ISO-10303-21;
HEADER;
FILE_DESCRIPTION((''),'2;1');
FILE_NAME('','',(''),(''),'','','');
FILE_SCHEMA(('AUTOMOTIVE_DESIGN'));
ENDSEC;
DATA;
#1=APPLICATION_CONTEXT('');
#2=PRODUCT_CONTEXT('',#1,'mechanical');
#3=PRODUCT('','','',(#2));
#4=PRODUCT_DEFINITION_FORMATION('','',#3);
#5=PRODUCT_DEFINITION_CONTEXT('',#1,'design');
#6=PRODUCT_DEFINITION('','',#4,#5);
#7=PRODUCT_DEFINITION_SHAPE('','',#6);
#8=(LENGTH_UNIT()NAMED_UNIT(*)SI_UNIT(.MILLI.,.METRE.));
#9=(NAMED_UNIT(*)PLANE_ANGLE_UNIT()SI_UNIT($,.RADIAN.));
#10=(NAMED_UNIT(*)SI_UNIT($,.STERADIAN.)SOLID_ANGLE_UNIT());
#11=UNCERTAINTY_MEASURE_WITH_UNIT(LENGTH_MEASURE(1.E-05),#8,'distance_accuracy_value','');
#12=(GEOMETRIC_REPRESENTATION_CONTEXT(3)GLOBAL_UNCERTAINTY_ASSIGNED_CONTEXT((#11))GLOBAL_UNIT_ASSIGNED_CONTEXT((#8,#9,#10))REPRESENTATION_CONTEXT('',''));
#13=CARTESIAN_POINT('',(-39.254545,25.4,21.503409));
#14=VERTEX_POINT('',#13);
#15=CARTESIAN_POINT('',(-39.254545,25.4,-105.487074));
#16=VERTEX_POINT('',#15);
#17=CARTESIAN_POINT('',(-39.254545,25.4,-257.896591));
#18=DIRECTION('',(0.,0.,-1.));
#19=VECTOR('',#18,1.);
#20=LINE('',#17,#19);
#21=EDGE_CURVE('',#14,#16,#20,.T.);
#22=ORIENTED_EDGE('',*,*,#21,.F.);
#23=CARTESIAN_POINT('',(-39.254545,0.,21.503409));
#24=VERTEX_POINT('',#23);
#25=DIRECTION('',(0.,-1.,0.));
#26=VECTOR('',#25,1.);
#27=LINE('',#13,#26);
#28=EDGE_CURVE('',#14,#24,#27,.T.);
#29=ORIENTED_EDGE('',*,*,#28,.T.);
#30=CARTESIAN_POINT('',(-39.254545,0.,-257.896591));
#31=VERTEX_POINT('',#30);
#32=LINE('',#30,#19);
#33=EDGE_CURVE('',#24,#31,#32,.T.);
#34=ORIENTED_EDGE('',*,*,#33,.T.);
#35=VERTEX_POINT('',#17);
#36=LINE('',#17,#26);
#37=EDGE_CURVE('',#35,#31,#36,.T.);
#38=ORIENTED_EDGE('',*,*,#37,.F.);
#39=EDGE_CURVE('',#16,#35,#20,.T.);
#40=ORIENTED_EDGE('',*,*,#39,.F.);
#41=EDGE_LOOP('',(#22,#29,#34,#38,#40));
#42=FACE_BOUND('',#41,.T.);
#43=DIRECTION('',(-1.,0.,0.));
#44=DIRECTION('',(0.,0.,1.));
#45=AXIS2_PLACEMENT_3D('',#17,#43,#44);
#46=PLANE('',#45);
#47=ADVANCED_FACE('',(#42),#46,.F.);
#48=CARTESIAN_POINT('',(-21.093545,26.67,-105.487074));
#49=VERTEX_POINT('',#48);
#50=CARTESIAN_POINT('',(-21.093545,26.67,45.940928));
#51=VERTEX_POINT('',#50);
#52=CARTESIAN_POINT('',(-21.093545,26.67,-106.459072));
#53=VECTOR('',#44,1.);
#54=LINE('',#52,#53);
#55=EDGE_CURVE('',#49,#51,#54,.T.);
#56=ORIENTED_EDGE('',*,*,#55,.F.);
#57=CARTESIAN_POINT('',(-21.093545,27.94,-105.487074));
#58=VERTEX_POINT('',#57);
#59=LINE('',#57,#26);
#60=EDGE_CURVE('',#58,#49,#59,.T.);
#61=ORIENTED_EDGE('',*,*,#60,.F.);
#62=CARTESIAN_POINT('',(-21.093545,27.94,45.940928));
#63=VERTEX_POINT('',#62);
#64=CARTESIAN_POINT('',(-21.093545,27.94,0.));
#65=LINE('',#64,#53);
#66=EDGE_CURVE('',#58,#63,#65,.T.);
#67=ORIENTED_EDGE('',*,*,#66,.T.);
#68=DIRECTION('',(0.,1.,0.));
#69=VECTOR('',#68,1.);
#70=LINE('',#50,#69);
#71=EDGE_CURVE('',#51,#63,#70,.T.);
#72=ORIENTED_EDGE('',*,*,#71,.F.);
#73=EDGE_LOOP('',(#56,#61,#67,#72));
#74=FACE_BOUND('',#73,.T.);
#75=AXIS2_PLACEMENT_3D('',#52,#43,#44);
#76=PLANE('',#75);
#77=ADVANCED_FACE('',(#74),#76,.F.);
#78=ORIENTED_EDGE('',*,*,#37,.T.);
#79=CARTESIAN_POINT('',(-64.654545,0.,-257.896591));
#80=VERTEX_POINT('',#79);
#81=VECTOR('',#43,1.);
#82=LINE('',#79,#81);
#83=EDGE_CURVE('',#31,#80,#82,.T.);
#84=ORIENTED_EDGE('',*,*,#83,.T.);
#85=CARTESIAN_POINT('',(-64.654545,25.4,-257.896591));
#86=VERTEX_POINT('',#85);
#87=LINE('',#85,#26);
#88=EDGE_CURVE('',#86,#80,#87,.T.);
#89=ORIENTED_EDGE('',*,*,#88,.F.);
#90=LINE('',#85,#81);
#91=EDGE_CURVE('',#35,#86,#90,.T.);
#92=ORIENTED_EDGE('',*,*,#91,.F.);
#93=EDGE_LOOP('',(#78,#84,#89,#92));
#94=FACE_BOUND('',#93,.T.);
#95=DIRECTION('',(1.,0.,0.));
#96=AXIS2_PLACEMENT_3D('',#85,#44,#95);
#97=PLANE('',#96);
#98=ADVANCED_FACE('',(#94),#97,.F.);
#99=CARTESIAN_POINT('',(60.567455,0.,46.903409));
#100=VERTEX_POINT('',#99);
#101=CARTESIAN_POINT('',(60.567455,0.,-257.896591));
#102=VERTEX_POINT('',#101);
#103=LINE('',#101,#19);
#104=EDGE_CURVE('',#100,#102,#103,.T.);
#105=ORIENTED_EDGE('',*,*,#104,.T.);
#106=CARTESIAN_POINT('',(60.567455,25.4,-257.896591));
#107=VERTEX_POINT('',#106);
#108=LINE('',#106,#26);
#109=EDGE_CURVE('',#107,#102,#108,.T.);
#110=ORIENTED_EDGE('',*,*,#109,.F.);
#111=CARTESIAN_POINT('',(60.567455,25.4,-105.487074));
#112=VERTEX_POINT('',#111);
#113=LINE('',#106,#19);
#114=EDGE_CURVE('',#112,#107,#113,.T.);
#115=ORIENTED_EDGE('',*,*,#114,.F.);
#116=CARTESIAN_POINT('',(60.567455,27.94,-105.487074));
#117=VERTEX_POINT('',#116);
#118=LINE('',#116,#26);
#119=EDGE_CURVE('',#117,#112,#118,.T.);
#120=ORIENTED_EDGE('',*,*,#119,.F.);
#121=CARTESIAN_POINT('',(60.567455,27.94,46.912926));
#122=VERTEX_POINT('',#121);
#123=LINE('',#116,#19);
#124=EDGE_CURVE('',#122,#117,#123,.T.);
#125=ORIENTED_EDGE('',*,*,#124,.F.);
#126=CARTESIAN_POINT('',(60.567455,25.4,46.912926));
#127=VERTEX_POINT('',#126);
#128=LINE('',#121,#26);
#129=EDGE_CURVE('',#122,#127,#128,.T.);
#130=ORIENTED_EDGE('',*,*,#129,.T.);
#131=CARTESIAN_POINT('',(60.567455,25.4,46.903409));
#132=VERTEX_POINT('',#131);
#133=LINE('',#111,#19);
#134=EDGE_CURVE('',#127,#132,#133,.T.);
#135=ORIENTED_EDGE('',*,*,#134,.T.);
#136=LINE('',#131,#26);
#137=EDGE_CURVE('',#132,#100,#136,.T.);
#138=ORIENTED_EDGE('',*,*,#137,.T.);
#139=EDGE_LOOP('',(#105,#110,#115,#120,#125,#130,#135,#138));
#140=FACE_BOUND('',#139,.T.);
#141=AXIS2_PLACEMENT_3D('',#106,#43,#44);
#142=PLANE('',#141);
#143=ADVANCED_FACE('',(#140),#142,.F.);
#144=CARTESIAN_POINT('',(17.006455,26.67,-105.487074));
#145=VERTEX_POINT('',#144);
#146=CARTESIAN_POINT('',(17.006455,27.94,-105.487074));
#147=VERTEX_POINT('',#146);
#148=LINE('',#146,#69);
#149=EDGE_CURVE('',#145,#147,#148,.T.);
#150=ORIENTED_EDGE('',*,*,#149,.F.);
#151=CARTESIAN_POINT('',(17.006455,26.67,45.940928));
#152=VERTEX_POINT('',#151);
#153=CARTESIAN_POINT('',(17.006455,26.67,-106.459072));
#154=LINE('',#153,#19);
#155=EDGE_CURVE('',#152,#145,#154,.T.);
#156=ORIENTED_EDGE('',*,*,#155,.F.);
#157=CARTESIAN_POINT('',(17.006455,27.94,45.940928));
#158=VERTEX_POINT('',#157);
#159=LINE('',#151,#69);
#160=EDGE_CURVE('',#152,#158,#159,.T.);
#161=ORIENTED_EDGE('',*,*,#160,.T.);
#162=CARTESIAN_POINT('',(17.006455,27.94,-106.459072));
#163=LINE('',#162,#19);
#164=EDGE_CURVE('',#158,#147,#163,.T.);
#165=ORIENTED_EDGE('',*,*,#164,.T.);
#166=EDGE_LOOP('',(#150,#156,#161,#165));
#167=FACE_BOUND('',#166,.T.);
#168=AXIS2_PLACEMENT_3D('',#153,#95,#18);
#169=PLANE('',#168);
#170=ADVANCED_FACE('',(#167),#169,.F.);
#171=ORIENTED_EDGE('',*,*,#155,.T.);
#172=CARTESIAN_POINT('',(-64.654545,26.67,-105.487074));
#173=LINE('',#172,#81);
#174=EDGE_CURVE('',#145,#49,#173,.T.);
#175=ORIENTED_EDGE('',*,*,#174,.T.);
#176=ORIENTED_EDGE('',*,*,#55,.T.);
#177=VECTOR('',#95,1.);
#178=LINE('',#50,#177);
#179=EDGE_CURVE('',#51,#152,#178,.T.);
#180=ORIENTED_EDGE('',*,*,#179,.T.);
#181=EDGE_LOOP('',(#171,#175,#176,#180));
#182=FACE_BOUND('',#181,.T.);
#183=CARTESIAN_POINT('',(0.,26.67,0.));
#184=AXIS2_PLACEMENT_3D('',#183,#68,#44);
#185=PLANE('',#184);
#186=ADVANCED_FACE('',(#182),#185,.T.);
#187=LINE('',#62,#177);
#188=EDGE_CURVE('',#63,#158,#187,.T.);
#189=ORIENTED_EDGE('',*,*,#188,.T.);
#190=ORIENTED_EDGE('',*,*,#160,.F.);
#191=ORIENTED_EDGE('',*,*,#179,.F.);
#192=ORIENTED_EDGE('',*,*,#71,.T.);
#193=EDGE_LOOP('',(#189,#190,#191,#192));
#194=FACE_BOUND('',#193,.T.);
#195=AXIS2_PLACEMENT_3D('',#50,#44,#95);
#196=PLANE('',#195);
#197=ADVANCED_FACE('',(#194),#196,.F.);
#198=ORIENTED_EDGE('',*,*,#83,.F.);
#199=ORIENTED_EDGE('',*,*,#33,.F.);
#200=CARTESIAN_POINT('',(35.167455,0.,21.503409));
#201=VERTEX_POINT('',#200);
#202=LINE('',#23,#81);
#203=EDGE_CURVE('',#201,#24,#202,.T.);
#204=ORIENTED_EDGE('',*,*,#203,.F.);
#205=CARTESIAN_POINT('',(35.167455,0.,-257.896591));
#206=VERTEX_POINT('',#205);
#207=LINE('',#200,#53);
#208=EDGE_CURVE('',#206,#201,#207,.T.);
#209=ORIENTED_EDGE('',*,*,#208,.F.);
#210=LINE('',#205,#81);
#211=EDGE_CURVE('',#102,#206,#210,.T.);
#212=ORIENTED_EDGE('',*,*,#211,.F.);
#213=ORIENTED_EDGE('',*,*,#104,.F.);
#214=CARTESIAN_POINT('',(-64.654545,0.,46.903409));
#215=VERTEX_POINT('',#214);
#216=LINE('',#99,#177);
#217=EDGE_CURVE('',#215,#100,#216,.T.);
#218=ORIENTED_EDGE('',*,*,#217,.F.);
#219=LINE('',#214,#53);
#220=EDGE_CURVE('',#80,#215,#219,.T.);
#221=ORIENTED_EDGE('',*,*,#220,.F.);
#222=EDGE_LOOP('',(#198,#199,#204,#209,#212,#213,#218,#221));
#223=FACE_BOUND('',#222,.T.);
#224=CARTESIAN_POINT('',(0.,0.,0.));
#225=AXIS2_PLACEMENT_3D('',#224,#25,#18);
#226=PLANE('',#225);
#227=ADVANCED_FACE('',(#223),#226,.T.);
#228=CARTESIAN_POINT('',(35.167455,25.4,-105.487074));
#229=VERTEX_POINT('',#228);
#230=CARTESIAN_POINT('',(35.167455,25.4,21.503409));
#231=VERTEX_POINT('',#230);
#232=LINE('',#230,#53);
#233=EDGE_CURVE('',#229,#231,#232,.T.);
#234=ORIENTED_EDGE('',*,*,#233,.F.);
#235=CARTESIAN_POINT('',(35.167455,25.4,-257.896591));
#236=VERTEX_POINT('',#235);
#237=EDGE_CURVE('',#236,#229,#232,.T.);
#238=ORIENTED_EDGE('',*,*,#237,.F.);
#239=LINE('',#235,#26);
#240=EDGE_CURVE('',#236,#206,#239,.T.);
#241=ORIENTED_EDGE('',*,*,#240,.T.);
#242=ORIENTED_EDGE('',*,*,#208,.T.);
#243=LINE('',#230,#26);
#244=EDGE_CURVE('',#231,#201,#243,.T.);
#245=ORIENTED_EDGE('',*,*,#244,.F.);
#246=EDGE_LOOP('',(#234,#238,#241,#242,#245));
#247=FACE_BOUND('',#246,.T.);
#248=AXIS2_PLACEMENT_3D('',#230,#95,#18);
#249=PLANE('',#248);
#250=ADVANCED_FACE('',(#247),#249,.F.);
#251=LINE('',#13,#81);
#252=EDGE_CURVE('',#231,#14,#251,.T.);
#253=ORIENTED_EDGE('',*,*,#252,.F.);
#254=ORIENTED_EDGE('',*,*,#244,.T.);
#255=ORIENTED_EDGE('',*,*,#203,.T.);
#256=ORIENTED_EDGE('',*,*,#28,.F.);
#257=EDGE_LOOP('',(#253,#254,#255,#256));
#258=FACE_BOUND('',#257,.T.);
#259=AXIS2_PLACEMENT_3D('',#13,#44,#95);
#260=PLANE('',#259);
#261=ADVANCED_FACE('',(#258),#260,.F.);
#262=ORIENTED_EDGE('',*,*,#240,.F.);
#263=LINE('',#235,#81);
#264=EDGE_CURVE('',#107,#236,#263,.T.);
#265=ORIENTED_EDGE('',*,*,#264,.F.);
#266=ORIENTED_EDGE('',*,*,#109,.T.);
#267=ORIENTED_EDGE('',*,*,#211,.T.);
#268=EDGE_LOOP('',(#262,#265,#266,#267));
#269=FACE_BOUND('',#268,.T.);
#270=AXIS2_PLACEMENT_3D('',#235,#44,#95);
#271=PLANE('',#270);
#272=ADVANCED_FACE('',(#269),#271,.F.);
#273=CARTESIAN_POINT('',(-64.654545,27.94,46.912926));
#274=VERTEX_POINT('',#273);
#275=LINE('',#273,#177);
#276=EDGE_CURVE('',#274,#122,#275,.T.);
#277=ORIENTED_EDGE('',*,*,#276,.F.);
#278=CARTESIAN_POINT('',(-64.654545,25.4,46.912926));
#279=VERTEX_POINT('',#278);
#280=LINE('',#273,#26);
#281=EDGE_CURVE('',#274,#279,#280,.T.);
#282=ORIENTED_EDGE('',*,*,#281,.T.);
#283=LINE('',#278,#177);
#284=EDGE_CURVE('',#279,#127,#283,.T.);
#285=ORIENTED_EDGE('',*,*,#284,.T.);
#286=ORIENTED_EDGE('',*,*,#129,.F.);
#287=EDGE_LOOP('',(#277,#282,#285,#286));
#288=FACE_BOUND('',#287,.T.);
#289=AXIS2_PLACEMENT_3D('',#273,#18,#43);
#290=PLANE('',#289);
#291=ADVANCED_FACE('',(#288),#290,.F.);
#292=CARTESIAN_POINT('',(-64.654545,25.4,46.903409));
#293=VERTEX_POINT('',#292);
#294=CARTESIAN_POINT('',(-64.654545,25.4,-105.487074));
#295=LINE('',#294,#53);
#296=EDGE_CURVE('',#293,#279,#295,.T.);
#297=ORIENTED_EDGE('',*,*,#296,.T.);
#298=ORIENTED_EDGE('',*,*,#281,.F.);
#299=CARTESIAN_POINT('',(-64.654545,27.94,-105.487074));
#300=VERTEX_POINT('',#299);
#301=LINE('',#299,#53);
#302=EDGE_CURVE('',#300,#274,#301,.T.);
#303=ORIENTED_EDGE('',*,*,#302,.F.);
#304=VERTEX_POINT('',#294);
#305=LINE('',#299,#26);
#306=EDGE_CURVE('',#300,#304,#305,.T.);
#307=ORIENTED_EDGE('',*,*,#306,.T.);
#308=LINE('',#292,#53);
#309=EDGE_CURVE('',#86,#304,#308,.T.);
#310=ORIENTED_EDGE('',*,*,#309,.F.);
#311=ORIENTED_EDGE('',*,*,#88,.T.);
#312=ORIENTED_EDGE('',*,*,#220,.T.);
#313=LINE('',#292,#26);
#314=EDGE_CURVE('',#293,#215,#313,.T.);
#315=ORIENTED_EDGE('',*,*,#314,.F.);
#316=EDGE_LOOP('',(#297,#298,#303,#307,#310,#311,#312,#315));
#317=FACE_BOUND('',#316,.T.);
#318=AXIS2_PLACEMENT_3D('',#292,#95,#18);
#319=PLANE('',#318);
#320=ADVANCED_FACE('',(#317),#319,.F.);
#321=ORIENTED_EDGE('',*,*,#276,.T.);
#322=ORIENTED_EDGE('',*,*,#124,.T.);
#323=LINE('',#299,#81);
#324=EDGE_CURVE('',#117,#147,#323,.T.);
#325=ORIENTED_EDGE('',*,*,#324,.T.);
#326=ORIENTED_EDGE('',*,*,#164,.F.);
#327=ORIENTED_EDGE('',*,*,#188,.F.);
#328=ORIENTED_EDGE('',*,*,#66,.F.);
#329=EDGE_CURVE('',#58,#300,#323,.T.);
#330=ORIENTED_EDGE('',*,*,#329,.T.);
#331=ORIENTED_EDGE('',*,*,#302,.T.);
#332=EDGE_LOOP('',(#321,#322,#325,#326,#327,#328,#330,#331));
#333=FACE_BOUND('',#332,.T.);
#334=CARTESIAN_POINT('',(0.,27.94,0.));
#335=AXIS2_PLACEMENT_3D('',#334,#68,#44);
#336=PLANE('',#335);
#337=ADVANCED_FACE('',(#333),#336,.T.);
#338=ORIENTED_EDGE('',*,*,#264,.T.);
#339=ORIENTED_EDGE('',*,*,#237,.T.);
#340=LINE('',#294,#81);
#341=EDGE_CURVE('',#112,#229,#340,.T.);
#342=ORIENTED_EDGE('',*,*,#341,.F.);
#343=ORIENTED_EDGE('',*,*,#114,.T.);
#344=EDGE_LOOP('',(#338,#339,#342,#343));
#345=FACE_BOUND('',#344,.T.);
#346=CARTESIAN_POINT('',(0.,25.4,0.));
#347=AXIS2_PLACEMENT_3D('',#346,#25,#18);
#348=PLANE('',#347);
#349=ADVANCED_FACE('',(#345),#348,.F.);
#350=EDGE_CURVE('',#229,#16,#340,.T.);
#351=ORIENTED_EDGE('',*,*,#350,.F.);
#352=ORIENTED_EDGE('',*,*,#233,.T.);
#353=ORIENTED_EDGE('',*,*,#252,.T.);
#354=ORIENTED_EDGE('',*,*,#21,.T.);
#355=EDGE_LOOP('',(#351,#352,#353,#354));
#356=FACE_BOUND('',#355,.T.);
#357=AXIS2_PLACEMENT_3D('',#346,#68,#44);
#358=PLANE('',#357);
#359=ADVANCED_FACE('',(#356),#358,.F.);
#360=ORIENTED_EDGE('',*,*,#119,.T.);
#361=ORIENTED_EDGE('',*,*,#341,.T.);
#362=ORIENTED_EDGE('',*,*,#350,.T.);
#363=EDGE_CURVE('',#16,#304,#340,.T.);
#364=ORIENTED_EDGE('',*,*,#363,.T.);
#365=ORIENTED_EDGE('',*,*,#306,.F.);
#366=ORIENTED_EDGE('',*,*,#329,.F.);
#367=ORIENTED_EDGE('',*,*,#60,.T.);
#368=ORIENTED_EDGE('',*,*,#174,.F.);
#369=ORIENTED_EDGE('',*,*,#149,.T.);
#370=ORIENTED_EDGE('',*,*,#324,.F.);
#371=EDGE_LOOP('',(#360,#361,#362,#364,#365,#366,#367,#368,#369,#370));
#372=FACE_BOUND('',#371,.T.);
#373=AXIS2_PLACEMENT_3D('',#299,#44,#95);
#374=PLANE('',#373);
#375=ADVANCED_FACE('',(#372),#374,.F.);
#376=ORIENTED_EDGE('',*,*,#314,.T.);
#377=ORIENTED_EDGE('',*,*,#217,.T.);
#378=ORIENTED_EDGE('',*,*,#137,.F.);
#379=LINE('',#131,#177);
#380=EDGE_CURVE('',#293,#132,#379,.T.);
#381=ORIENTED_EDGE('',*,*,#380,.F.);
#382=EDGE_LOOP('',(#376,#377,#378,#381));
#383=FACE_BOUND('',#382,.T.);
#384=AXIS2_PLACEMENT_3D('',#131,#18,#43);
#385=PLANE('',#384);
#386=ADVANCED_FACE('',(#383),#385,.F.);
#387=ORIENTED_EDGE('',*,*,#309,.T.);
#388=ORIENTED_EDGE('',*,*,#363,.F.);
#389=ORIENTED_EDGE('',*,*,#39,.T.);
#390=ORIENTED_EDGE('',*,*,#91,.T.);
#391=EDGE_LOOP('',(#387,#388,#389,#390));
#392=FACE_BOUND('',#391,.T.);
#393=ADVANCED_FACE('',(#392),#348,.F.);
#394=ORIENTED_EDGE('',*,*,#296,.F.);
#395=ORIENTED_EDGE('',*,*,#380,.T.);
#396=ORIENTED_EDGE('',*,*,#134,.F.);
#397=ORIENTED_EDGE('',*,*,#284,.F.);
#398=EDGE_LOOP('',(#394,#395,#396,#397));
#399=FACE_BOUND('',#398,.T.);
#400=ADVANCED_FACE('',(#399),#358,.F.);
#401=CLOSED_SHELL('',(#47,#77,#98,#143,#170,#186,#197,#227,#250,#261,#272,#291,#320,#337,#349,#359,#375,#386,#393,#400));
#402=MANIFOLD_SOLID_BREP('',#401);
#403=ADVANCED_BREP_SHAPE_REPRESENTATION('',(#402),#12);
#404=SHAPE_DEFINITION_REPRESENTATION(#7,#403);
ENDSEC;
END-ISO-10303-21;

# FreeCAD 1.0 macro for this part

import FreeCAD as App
import Part
import Sketcher
from FreeCAD import Vector
Q = App.Units.Quantity


def add_polygon(sketch, points):
    """Adds a closed chain of lines whose ends are joined by coincident constraints."""
    first, n = sketch.GeometryCount, len(points)
    for a, b in zip(points, points[1:] + points[:1]):
        sketch.addGeometry(Part.LineSegment(App.Vector(*a, 0), App.Vector(*b, 0)), False)
    for i in range(n):
        sketch.addConstraint(Sketcher.Constraint("Coincident", first + i, 2, first + (i + 1) % n, 1))

doc = App.newDocument("Part")
body = doc.addObject("PartDesign::Body", "Body")

sketch1 = body.newObject("Sketcher::SketchObject", "Sketch")
sketch1.AttachmentSupport = (doc.getObject("XZ_Plane"), [""])
sketch1.MapMode = "FlatFace"
add_polygon(sketch1, [(-39, -258), (-65, -258), (-65, 47), (61, 47), (61, -258), (35, -258), (35, 22), (-39, 22)])
sketch1.addConstraint(Sketcher.Constraint("Horizontal", 0))
sketch1.addConstraint(Sketcher.Constraint("Vertical", 1))
sketch1.addConstraint(Sketcher.Constraint("Horizontal", 2))
sketch1.addConstraint(Sketcher.Constraint("Vertical", 3))
sketch1.addConstraint(Sketcher.Constraint("Horizontal", 4))
sketch1.addConstraint(Sketcher.Constraint("Vertical", 5))
sketch1.addConstraint(Sketcher.Constraint("Horizontal", 6))
sketch1.addConstraint(Sketcher.Constraint("Vertical", 7))
sketch1.addConstraint(Sketcher.Constraint("Horizontal", 0, 2, 3, 2))
sketch1.addConstraint(Sketcher.Constraint("Equal", 0, 4))
sketch1.addConstraint(Sketcher.Constraint("DistanceX", 0, 2, 0, 1, Q("1 in")))
sketch1.addConstraint(Sketcher.Constraint("DistanceY", 1, 1, 1, 2, Q("12 in")))
sketch1.addConstraint(Sketcher.Constraint("DistanceY", 5, 1, 5, 2, Q("11 in")))
sketch1.addConstraint(Sketcher.Constraint("DistanceX", 2, 1, 2, 2, Q("4.93 in")))
sketch1.addConstraint(Sketcher.Constraint("DistanceY", 0, 2, -1, 1, Q("257.896591 mm")))
sketch1.addConstraint(Sketcher.Constraint("DistanceX", 0, 2, -1, 1, Q("64.654545 mm")))
pad1 = body.newObject("PartDesign::Pad", "Pad")
pad1.Profile = sketch1
pad1.Length = Q("1 in")
pad1.Reversed = True

sketch2 = body.newObject("Sketcher::SketchObject", "Sketch001")
sketch2.AttachmentSupport = (doc.getObject("XZ_Plane"), [""])
sketch2.MapMode = "FlatFace"
sketch2.AttachmentOffset = App.Placement(Vector(0, 0, -1 * 25.4), App.Rotation())
add_polygon(sketch2, [(-65, -105), (-65, 47), (61, 47), (61, -105)])
sketch2.addConstraint(Sketcher.Constraint("Vertical", 0))
sketch2.addConstraint(Sketcher.Constraint("Horizontal", 1))
sketch2.addConstraint(Sketcher.Constraint("Vertical", 2))
sketch2.addConstraint(Sketcher.Constraint("Horizontal", 3))
sketch2.addConstraint(Sketcher.Constraint("DistanceY", 0, 1, 0, 2, Q("6 in")))
sketch2.addConstraint(Sketcher.Constraint("DistanceX", 1, 1, 1, 2, Q("4.93 in")))
sketch2.addConstraint(Sketcher.Constraint("DistanceX", 0, 2, -1, 1, Q("64.654545 mm")))
sketch2.addConstraint(Sketcher.Constraint("DistanceY", -1, 1, 0, 2, Q("46.912926 mm")))
pad2 = body.newObject("PartDesign::Pad", "Pad001")
pad2.Profile = sketch2
pad2.Length = Q("0.1 in")
pad2.Reversed = True

sketch3 = body.newObject("Sketcher::SketchObject", "Sketch002")
sketch3.AttachmentSupport = (doc.getObject("XZ_Plane"), [""])
sketch3.MapMode = "FlatFace"
sketch3.AttachmentOffset = App.Placement(Vector(0, 0, -1.1 * 25.4), App.Rotation())
add_polygon(sketch3, [(-21, -106), (-21, 46), (17, 46), (17, -106)])
sketch3.addConstraint(Sketcher.Constraint("Vertical", 0))
sketch3.addConstraint(Sketcher.Constraint("Horizontal", 1))
sketch3.addConstraint(Sketcher.Constraint("Vertical", 2))
sketch3.addConstraint(Sketcher.Constraint("Horizontal", 3))
sketch3.addConstraint(Sketcher.Constraint("DistanceY", 0, 1, 0, 2, Q("6 in")))
sketch3.addConstraint(Sketcher.Constraint("DistanceX", 1, 1, 1, 2, Q("1.5 in")))
sketch3.addConstraint(Sketcher.Constraint("DistanceY", -1, 1, 0, 2, Q("45.940928 mm")))
sketch3.addConstraint(Sketcher.Constraint("DistanceX", 0, 2, -1, 1, Q("21.093545 mm")))
pocket1 = body.newObject("PartDesign::Pocket", "Pocket")
pocket1.Profile = sketch3
pocket1.Length = Q("0.05 in")
pocket1.Reversed = True

doc.recompute()
